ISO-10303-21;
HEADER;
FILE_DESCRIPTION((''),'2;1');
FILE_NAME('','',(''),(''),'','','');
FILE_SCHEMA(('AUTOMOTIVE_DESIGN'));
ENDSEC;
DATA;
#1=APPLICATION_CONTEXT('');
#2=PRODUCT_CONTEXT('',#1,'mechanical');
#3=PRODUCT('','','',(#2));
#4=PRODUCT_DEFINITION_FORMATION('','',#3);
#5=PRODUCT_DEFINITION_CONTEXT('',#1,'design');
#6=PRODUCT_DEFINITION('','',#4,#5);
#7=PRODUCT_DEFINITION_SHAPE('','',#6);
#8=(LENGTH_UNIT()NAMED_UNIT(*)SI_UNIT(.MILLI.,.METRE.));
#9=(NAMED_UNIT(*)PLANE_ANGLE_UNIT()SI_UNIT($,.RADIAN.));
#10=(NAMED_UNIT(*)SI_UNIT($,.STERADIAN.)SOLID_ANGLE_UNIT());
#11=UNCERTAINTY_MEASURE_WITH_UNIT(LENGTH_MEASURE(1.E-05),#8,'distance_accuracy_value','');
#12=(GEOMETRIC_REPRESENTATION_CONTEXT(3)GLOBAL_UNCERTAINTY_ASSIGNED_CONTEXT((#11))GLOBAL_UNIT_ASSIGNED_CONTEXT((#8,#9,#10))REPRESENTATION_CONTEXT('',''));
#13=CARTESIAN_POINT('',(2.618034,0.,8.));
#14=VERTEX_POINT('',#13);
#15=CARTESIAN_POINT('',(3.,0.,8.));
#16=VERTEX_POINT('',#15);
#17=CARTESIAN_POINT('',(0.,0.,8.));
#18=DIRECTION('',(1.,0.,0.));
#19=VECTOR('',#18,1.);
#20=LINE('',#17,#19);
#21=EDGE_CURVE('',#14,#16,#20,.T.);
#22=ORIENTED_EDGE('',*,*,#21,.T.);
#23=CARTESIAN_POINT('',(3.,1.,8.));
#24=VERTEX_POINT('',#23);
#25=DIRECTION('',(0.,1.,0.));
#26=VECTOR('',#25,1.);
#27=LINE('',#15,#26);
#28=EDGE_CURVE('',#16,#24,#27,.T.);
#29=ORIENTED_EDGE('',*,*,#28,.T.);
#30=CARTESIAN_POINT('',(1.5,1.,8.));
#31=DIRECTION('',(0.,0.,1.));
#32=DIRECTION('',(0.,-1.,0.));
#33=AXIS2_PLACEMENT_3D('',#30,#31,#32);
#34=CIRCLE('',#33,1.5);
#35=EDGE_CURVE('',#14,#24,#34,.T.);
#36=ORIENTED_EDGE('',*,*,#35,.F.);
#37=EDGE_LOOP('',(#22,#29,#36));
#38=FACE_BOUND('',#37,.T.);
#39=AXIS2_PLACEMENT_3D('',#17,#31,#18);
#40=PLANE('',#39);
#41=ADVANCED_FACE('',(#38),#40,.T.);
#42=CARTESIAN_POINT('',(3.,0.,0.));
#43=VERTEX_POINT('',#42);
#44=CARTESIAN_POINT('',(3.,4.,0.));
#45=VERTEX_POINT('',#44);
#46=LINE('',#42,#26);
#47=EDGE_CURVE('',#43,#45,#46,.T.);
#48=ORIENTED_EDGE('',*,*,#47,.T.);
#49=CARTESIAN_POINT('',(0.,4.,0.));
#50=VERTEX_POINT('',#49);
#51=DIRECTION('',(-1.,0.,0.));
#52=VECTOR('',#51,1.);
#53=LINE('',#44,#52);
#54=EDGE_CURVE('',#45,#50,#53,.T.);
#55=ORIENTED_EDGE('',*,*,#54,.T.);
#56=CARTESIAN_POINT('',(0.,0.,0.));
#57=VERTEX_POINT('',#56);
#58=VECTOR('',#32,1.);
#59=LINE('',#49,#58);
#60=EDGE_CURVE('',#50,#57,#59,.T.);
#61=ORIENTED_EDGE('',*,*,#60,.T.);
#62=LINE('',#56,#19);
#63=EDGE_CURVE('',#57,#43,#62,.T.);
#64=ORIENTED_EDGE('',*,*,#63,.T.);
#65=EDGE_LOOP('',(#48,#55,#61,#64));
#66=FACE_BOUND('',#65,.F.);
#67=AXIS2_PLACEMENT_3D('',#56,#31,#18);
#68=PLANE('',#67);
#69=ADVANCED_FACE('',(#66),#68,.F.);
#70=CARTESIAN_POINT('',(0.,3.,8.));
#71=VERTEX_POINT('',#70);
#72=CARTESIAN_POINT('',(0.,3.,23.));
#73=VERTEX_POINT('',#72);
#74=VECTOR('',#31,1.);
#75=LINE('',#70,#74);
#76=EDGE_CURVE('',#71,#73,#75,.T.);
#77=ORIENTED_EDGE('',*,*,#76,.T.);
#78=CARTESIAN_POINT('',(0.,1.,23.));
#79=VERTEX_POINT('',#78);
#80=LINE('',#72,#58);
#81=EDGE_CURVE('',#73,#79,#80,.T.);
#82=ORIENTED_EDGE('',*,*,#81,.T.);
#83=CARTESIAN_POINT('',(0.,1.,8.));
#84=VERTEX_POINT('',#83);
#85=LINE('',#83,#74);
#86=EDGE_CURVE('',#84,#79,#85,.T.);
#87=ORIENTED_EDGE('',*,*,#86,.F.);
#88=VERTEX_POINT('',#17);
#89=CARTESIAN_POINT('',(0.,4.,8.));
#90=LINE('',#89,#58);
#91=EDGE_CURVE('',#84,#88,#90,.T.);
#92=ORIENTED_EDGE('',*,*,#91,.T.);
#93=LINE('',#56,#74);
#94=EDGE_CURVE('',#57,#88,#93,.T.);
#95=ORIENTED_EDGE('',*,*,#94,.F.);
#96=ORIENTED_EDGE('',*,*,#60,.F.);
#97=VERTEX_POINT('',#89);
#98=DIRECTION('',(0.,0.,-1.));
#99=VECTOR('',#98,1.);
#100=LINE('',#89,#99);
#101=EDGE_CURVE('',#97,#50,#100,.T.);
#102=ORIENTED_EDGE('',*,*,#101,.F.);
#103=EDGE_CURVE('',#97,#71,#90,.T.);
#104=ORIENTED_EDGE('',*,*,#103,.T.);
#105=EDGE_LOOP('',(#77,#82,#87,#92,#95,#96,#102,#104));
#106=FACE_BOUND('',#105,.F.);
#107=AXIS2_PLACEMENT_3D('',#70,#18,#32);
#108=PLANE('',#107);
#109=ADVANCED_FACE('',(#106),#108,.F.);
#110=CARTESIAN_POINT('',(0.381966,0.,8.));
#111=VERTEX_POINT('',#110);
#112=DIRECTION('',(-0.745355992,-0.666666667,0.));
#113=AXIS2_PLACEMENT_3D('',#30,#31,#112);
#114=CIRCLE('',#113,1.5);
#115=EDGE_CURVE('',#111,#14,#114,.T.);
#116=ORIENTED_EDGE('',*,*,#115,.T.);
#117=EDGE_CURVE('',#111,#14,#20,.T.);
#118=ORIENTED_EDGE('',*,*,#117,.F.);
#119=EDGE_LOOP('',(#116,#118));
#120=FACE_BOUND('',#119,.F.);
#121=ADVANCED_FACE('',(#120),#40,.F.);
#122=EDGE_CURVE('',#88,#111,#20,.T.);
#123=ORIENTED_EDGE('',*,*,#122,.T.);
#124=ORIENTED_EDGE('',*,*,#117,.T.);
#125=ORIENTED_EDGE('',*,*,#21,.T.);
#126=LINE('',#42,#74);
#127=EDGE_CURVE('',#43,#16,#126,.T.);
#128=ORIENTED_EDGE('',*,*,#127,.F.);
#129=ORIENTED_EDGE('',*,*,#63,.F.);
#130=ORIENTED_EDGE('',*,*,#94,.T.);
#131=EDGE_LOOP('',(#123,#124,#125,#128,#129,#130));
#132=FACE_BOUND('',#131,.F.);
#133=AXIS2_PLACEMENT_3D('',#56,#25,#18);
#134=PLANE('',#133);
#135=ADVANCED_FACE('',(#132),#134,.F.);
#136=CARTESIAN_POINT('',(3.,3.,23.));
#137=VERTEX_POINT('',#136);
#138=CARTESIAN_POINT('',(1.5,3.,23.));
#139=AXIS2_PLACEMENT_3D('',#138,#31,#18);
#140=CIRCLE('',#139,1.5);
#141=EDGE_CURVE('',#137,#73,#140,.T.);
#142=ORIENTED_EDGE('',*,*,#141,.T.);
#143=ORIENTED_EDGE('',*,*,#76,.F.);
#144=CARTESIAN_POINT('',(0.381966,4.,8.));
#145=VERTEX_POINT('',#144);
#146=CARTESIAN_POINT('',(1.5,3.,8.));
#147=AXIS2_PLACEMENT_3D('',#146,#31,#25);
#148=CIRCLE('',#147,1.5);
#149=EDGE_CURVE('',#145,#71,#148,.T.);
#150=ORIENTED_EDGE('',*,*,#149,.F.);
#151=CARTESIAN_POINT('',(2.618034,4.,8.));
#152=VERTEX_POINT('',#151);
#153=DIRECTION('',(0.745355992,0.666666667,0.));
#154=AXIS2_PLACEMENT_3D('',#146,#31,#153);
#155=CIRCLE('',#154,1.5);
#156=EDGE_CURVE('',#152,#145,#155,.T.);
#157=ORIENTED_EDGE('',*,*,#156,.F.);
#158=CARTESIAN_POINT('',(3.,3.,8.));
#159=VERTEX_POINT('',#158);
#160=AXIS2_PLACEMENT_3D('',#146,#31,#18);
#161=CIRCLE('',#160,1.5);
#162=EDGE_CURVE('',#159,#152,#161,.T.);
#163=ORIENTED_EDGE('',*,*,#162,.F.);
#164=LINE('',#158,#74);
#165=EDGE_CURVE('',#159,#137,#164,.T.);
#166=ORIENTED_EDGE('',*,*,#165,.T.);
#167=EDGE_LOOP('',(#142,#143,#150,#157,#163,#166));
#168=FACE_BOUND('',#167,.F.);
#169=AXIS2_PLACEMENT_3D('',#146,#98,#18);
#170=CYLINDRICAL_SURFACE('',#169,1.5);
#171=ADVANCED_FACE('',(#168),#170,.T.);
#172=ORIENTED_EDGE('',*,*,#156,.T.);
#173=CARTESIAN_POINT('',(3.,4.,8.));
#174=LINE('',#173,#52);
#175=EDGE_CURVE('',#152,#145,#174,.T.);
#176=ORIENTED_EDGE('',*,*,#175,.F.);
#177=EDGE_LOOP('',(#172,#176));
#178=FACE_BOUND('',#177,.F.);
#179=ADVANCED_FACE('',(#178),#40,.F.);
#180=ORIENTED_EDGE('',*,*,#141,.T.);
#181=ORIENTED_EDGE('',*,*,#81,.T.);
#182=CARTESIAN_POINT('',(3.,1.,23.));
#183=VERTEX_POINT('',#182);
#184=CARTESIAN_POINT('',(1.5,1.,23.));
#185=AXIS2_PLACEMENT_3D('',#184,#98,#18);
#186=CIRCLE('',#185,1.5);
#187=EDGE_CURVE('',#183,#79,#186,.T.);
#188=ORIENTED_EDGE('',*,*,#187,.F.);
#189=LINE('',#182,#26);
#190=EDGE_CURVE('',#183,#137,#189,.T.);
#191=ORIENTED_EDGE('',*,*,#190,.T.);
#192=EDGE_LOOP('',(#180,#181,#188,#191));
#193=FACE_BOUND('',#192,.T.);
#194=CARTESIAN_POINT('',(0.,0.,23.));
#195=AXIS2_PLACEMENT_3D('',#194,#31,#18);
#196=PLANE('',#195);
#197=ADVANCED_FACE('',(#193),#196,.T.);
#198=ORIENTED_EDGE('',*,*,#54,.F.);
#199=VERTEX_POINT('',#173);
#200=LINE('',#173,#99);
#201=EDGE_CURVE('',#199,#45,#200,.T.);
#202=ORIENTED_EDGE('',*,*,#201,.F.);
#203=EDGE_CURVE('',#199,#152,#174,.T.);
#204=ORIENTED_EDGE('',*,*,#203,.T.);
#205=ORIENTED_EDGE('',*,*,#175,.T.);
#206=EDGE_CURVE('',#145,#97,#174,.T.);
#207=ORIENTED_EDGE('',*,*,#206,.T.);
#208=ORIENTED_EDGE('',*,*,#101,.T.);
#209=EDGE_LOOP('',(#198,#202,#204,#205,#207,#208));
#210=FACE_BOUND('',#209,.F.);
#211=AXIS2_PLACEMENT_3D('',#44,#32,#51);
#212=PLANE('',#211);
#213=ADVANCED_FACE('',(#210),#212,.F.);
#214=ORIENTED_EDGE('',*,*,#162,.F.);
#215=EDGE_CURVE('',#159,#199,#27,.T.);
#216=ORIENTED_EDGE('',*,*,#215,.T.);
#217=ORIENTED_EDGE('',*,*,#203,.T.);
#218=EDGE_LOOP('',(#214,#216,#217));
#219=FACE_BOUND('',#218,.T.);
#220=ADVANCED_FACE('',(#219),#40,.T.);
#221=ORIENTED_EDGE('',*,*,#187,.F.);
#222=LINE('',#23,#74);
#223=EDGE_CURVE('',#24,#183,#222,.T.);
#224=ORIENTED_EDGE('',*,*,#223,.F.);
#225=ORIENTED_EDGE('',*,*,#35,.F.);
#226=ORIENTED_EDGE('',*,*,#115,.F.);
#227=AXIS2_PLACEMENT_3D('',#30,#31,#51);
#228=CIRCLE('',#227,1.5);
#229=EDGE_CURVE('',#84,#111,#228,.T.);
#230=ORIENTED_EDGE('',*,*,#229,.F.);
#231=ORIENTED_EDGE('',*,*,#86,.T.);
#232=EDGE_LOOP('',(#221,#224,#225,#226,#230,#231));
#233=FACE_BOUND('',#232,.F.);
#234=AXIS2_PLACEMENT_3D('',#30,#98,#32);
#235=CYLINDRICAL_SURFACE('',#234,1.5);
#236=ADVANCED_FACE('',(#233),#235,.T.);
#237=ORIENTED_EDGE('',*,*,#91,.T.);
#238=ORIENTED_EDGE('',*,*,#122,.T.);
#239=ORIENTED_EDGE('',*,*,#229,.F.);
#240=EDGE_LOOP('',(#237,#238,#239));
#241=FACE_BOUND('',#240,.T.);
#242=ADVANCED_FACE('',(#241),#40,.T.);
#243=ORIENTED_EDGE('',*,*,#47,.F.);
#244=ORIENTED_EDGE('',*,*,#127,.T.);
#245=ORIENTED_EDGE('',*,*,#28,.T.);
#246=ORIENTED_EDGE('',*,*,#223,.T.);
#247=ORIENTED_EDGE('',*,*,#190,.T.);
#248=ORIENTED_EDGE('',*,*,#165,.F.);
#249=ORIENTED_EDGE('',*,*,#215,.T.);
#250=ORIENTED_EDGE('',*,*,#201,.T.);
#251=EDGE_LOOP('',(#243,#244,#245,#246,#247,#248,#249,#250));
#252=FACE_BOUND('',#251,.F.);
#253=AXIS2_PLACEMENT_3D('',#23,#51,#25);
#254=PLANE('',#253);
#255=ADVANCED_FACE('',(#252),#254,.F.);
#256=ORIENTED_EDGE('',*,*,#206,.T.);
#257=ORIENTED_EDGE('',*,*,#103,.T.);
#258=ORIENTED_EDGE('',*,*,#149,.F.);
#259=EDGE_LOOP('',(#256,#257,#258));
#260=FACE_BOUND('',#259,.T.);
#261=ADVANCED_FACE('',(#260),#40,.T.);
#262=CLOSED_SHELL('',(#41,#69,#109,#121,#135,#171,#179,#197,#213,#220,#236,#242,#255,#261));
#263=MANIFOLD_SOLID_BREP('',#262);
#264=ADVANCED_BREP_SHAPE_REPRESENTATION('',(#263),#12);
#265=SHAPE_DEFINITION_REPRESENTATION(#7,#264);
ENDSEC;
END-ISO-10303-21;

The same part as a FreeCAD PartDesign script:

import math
import FreeCAD as App
import Part
import Sketcher
from FreeCAD import Vector

doc = App.newDocument("Part")
body = doc.addObject("PartDesign::Body", "Body")

# Sketch on XY plane
sketch1 = doc.addObject("Sketcher::SketchObject", "Sketch")
body.addObject(sketch1)
sketch1.AttachmentSupport = (doc.XY_Plane, [""])
sketch1.MapMode = "FlatFace"
sketch1.addGeometry([
    Part.LineSegment(Vector(0, 4, 0), Vector(0, 0, 0)),
    Part.LineSegment(Vector(0, 0, 0), Vector(3, 0, 0)),
    Part.LineSegment(Vector(3, 0, 0), Vector(3, 4, 0)),
    Part.LineSegment(Vector(3, 4, 0), Vector(0, 4, 0)),
], False)
sketch1.addConstraint([
    Sketcher.Constraint("Coincident", 0, 2, 1, 1),
    Sketcher.Constraint("Coincident", 1, 2, 2, 1),
    Sketcher.Constraint("Coincident", 2, 2, 3, 1),
    Sketcher.Constraint("Coincident", 3, 2, 0, 1),
    Sketcher.Constraint("Vertical", 0),
    Sketcher.Constraint("Horizontal", 1),
    Sketcher.Constraint("Vertical", 2),
    Sketcher.Constraint("Horizontal", 3),
    Sketcher.Constraint("Coincident", 0, 2, -1, 1),
    Sketcher.Constraint("DistanceX", 1, 1, 1, 2, 3.0),
    Sketcher.Constraint("DistanceY", 0, 2, 0, 1, 4.0),
])
pad1 = doc.addObject("PartDesign::Pad", "Pad")
body.addObject(pad1)
pad1.Profile = sketch1
pad1.Length = 4

# Sketch on XY plane
sketch2 = doc.addObject("Sketcher::SketchObject", "Sketch001")
body.addObject(sketch2)
sketch2.AttachmentSupport = (doc.XY_Plane, [""])
sketch2.MapMode = "FlatFace"
sketch2.AttachmentOffset = App.Placement(Vector(0, 0, 4), App.Rotation())
sketch2.addGeometry([
    Part.LineSegment(Vector(0, 4, 0), Vector(0, 0, 0)),
    Part.LineSegment(Vector(0, 0, 0), Vector(3, 0, 0)),
    Part.LineSegment(Vector(3, 0, 0), Vector(3, 4, 0)),
    Part.LineSegment(Vector(3, 4, 0), Vector(0, 4, 0)),
], False)
sketch2.addConstraint([
    Sketcher.Constraint("Coincident", 0, 2, 1, 1),
    Sketcher.Constraint("Coincident", 1, 2, 2, 1),
    Sketcher.Constraint("Coincident", 2, 2, 3, 1),
    Sketcher.Constraint("Coincident", 3, 2, 0, 1),
    Sketcher.Constraint("Vertical", 0),
    Sketcher.Constraint("Horizontal", 1),
    Sketcher.Constraint("Vertical", 2),
    Sketcher.Constraint("Horizontal", 3),
    Sketcher.Constraint("Coincident", 0, 2, -1, 1),
    Sketcher.Constraint("DistanceX", 1, 1, 1, 2, 3.0),
    Sketcher.Constraint("DistanceY", 0, 2, 0, 1, 4.0),
])
pad2 = doc.addObject("PartDesign::Pad", "Pad001")
body.addObject(pad2)
pad2.Profile = sketch2
pad2.Length = 4

# Sketch on XY plane
sketch3 = doc.addObject("Sketcher::SketchObject", "Sketch002")
body.addObject(sketch3)
sketch3.AttachmentSupport = (doc.XY_Plane, [""])
sketch3.MapMode = "FlatFace"
sketch3.AttachmentOffset = App.Placement(Vector(0, 0, 8), App.Rotation())
sketch3.addGeometry([
    Part.ArcOfCircle(Part.Circle(Vector(1.5, 1, 0), Vector(0, 0, 1), 1.5), math.radians(180), math.radians(360)),
    Part.LineSegment(Vector(3, 1, 0), Vector(3, 3, 0)),
    Part.ArcOfCircle(Part.Circle(Vector(1.5, 3, 0), Vector(0, 0, 1), 1.5), math.radians(0), math.radians(180)),
    Part.LineSegment(Vector(0, 3, 0), Vector(0, 1, 0)),
], False)
sketch3.addConstraint([
    Sketcher.Constraint("Tangent", 0, 2, 1, 1),
    Sketcher.Constraint("Tangent", 1, 2, 2, 1),
    Sketcher.Constraint("Tangent", 2, 2, 3, 1),
    Sketcher.Constraint("Tangent", 3, 2, 0, 1),
    Sketcher.Constraint("Vertical", 1),
    Sketcher.Constraint("Vertical", 3),
    Sketcher.Constraint("PointOnObject", 2, 2, -2),
    Sketcher.Constraint("Radius", 0, 1.5),
    Sketcher.Constraint("DistanceY", -1, 1, 2, 3, 3.0),
    Sketcher.Constraint("DistanceY", 1, 1, 1, 2, 2.0),
])
pad3 = doc.addObject("PartDesign::Pad", "Pad002")
body.addObject(pad3)
pad3.Profile = sketch3
pad3.Length = 15

doc.recompute()
